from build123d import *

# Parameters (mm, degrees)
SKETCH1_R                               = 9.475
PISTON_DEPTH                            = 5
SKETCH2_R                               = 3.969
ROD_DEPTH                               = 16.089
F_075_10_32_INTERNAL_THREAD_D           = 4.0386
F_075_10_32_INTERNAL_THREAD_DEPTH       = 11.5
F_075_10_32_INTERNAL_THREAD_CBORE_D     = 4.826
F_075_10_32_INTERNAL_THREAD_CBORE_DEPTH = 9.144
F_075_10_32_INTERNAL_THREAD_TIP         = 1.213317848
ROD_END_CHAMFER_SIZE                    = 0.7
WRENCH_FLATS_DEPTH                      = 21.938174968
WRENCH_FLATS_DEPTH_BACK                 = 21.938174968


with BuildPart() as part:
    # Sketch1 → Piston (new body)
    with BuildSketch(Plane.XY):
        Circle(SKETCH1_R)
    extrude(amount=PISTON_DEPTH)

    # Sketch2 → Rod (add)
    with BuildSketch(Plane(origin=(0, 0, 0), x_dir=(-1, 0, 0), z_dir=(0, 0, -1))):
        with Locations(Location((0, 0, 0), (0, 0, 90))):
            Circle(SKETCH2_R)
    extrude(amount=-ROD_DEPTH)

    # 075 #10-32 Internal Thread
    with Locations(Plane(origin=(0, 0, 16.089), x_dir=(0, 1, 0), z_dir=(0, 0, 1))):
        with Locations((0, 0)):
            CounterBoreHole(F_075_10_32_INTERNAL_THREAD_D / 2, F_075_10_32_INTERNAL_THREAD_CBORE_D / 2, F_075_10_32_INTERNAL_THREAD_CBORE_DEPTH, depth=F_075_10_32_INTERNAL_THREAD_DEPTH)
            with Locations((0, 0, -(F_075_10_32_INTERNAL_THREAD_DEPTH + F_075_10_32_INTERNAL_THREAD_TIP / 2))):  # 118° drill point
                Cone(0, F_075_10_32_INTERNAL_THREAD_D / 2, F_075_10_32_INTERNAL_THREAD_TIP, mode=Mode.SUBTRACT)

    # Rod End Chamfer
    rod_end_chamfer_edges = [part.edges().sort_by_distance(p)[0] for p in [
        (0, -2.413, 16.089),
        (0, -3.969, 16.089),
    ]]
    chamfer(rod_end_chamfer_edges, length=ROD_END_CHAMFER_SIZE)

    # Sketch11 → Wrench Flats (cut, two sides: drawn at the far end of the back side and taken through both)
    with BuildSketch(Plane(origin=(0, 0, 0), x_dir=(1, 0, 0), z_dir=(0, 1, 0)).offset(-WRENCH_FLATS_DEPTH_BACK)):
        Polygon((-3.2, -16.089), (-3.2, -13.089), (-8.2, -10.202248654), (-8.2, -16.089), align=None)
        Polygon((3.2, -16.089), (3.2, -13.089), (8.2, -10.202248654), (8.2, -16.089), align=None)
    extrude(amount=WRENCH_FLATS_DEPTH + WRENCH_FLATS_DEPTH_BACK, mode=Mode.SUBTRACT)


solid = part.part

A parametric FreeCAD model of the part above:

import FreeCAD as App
import Part
import Sketcher
from FreeCAD import Vector
Q = App.Units.Quantity


def edges_at(feature, points):
    """Names of the edges that pass closest to the given points."""
    edges = feature.Shape.Edges
    near = lambda p: min(range(len(edges)), key=lambda i: edges[i].distToShape(Part.Vertex(*p))[0])
    return sorted({f"Edge{near(p) + 1}" for p in points})


def add_polygon(sketch, points):
    """Adds a closed chain of lines whose ends are joined by coincident constraints."""
    first, n = sketch.GeometryCount, len(points)
    for a, b in zip(points, points[1:] + points[:1]):
        sketch.addGeometry(Part.LineSegment(App.Vector(*a, 0), App.Vector(*b, 0)), False)
    for i in range(n):
        sketch.addConstraint(Sketcher.Constraint("Coincident", first + i, 2, first + (i + 1) % n, 1))

doc = App.newDocument("Part")
body = doc.addObject("PartDesign::Body", "Body")

# Sketch on XY plane
sketch1 = body.newObject("Sketcher::SketchObject", "Sketch")
sketch1.AttachmentSupport = (doc.getObject("XY_Plane"), [""])
sketch1.MapMode = "FlatFace"
sketch1.addGeometry(Part.Circle(Vector(0, 0, 0), Vector(0, 0, 1), 9.475), False)
sketch1.addConstraint(Sketcher.Constraint("Coincident", 0, 3, -1, 1))
sketch1.addConstraint(Sketcher.Constraint("Diameter", 0, Q("18.95 mm")))
pad1 = body.newObject("PartDesign::Pad", "Pad")
pad1.Profile = sketch1
pad1.Length = 5

# Sketch on XY plane
sketch2 = body.newObject("Sketcher::SketchObject", "Sketch001")
sketch2.AttachmentSupport = (doc.getObject("XY_Plane"), [""])
sketch2.MapMode = "FlatFace"
sketch2.addGeometry(Part.Circle(Vector(0, 0, 0), Vector(0, 0, 1), 3.969), False)
sketch2.addConstraint(Sketcher.Constraint("Coincident", 0, 3, -1, 1))
sketch2.addConstraint(Sketcher.Constraint("Diameter", 0, Q("7.938 mm")))
pad2 = body.newObject("PartDesign::Pad", "Pad001")
pad2.Profile = sketch2
pad2.Length = 16.089

# Sketch on XY plane
sketch3 = body.newObject("Sketcher::SketchObject", "Sketch002")
sketch3.AttachmentSupport = (doc.getObject("XY_Plane"), [""])
sketch3.MapMode = "FlatFace"
sketch3.AttachmentOffset = App.Placement(Vector(0, 0, 16.089), App.Rotation())
sketch3.addGeometry(Part.Circle(Vector(0, 0, 0), Vector(0, 0, 1), 2.0193), False)
sketch3.addConstraint(Sketcher.Constraint("Coincident", 0, 3, -1, 1))
sketch3.addConstraint(Sketcher.Constraint("Diameter", 0, Q("4.0386 mm")))
doc.recompute()
hole = body.newObject("PartDesign::Hole", "Hole")
hole.Profile = sketch3
hole.ThreadType = "None"
hole.Diameter = 4.0386
hole.DepthType = "Dimension"
hole.Depth = 11.5
hole.DrillPoint = "Angled"
hole.DrillPointAngle = 118
hole.HoleCutType = "Counterbore"
hole.HoleCutDiameter = 4.826
hole.HoleCutDepth = 9.144
doc.recompute()

chamfer = body.newObject("PartDesign::Chamfer", "Chamfer")
chamfer.Base = (hole, edges_at(hole, [(0, -2.413, 16.089), (0, -3.969, 16.089)]))
chamfer.Size = 0.7

# Sketch on XZ plane
sketch4 = body.newObject("Sketcher::SketchObject", "Sketch003")
sketch4.AttachmentSupport = (doc.getObject("XZ_Plane"), [""])
sketch4.MapMode = "FlatFace"
add_polygon(sketch4, [(-3.2, 16.089), (-3.2, 13.089), (-8.2, 10.202249), (-8.2, 16.089)])  # lines 0-3
add_polygon(sketch4, [(3.2, 13.089), (3.2, 16.089), (8.2, 16.089), (8.2, 10.202249)])  # lines 4-7
sketch4.addConstraint(Sketcher.Constraint("Vertical", 0))
sketch4.addConstraint(Sketcher.Constraint("Vertical", 2))
sketch4.addConstraint(Sketcher.Constraint("Horizontal", 3))
sketch4.addConstraint(Sketcher.Constraint("Vertical", 4))
sketch4.addConstraint(Sketcher.Constraint("Horizontal", 5))
sketch4.addConstraint(Sketcher.Constraint("Vertical", 6))
sketch4.addConstraint(Sketcher.Constraint("Symmetric", 3, 2, 4, 2, -2))
sketch4.addConstraint(Sketcher.Constraint("Symmetric", 1, 2, 6, 2, -2))
sketch4.addConstraint(Sketcher.Constraint("Horizontal", 0, 2, 7, 2))
sketch4.addConstraint(Sketcher.Constraint("DistanceX", 3, 1, 3, 2, Q("5 mm")))
sketch4.addConstraint(Sketcher.Constraint("DistanceY", 0, 2, 0, 1, Q("3 mm")))
sketch4.addConstraint(Sketcher.Constraint("Angle", 1, Q("-150 deg")))
sketch4.addConstraint(Sketcher.Constraint("DistanceX", 0, 2, -1, 1, Q("3.2 mm")))
sketch4.addConstraint(Sketcher.Constraint("DistanceY", -1, 1, 0, 2, Q("13.089 mm")))
pocket1 = body.newObject("PartDesign::Pocket", "Pocket")
pocket1.Profile = sketch4
pocket1.Type = "ThroughAll"
pocket1.Midplane = True

doc.recompute()
